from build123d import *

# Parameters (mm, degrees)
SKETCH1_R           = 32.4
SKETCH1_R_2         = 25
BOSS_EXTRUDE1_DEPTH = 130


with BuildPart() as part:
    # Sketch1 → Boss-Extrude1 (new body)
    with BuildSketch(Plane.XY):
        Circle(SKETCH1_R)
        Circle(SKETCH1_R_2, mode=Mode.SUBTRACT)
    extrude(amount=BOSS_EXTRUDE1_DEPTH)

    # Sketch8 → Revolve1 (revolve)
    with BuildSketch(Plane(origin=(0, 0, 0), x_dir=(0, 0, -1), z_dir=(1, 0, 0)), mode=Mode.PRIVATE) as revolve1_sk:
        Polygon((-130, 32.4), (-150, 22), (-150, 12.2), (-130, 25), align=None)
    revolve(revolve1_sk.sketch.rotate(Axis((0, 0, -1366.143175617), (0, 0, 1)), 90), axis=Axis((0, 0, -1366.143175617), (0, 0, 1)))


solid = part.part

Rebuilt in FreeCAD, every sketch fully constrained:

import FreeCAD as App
import Part
import Sketcher
Q = App.Units.Quantity

doc = App.newDocument("Part")
body = doc.addObject("PartDesign::Body", "Body")

# Sketch on XY plane
sketch1 = doc.addObject("Sketcher::SketchObject", "Sketch")
body.addObject(sketch1)
sketch1.AttachmentSupport = (doc.XY_Plane, [""])
sketch1.MapMode = "FlatFace"
sketch1.addGeometry(Part.Circle(App.Vector(0, 0, 0), App.Vector(0, 0, 1), 32.4), False)
sketch1.addGeometry(Part.Circle(App.Vector(0, 0, 0), App.Vector(0, 0, 1), 25), False)
sketch1.addConstraint(Sketcher.Constraint("Coincident", 0, 3, -1, 1))
sketch1.addConstraint(Sketcher.Constraint("Coincident", 1, 3, -1, 1))
sketch1.addConstraint(Sketcher.Constraint("Diameter", 1, Q("50 mm")))
sketch1.addConstraint(Sketcher.Constraint("Diameter", 0, Q("64.8 mm")))
pad1 = doc.addObject("PartDesign::Pad", "Pad")
body.addObject(pad1)
pad1.Profile = sketch1
pad1.Length = 130

# Sketch on YZ plane
sketch2 = doc.addObject("Sketcher::SketchObject", "Sketch001")
body.addObject(sketch2)
sketch2.AttachmentSupport = (doc.YZ_Plane, [""])
sketch2.MapMode = "FlatFace"
sketch2.addGeometry(Part.LineSegment(App.Vector(32.4, 130, 0), App.Vector(22, 150, 0)), False)
sketch2.addGeometry(Part.LineSegment(App.Vector(22, 150, 0), App.Vector(12.2, 150, 0)), False)
sketch2.addGeometry(Part.LineSegment(App.Vector(12.2, 150, 0), App.Vector(25, 130, 0)), False)
sketch2.addGeometry(Part.LineSegment(App.Vector(25, 130, 0), App.Vector(32.4, 130, 0)), False)
sketch2.addConstraint(Sketcher.Constraint("Coincident", 0, 2, 1, 1))
sketch2.addConstraint(Sketcher.Constraint("Coincident", 1, 2, 2, 1))
sketch2.addConstraint(Sketcher.Constraint("Coincident", 2, 2, 3, 1))
sketch2.addConstraint(Sketcher.Constraint("Coincident", 3, 2, 0, 1))
sketch2.addConstraint(Sketcher.Constraint("Horizontal", 1))
sketch2.addConstraint(Sketcher.Constraint("Horizontal", 3))
sketch2.addConstraint(Sketcher.Constraint("DistanceX", 1, 2, 1, 1, Q("9.8 mm")))
sketch2.addConstraint(Sketcher.Constraint("DistanceX", 3, 1, 3, 2, Q("7.4 mm")))
sketch2.addConstraint(Sketcher.Constraint("DistanceX", -1, 1, 0, 2, Q("22 mm")))
sketch2.addConstraint(Sketcher.Constraint("DistanceY", -1, 1, 0, 2, Q("150 mm")))
sketch2.addConstraint(Sketcher.Constraint("DistanceX", -1, 1, 2, 2, Q("25 mm")))
sketch2.addConstraint(Sketcher.Constraint("DistanceY", -1, 1, 2, 2, Q("130 mm")))
revolution = doc.addObject("PartDesign::Revolution", "Revolution")
body.addObject(revolution)
revolution.Profile = sketch2
revolution.ReferenceAxis = (sketch2, ["V_Axis"])
revolution.Angle = 360

doc.recompute()
